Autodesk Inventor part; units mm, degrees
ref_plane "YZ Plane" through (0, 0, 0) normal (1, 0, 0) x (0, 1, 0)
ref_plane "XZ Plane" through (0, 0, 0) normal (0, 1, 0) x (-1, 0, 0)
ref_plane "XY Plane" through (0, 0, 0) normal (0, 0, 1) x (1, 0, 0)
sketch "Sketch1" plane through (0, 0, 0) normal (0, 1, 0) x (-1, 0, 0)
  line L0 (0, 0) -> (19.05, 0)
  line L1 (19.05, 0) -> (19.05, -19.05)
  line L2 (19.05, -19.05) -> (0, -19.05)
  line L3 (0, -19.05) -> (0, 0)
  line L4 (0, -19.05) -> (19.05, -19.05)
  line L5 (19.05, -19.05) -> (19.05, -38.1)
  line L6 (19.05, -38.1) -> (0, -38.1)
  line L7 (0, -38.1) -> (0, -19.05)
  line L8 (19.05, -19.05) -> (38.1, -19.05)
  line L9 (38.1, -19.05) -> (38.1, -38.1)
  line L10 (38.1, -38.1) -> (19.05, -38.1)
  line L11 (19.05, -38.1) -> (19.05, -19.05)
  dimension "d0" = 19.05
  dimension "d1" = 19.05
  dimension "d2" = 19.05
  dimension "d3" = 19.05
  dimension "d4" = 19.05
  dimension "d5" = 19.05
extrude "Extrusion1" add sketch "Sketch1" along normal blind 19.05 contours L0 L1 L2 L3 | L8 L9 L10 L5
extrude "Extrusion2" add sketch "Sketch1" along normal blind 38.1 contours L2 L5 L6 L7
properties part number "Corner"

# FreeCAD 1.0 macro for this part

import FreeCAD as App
import Part
import Sketcher
from FreeCAD import Vector
Q = App.Units.Quantity

doc = App.newDocument("Part")
body = doc.addObject("PartDesign::Body", "Body")
body.AllowCompound = True

sketch1 = doc.addObject("Sketcher::SketchObject", "Sketch")
body.addObject(sketch1)
sketch1.AttachmentSupport = (doc.XZ_Plane, [""])
sketch1.MapMode = "FlatFace"
sketch1.addGeometry([
    Part.LineSegment(Vector(-19, 0, 0), Vector(0, 0, 0)),
    Part.LineSegment(Vector(0, 0, 0), Vector(0, -19, 0)),
    Part.LineSegment(Vector(0, -19, 0), Vector(-19, -19, 0)),
    Part.LineSegment(Vector(-19, -19, 0), Vector(-19, 0, 0)),
    Part.LineSegment(Vector(-38, -19, 0), Vector(-19, -19, 0)),
    Part.LineSegment(Vector(-19, -19, 0), Vector(-19, -38, 0)),
    Part.LineSegment(Vector(-19, -38, 0), Vector(-38, -38, 0)),
    Part.LineSegment(Vector(-38, -38, 0), Vector(-38, -19, 0)),
], False)
sketch1.addConstraint([
    Sketcher.Constraint("Coincident", 0, 2, 1, 1),
    Sketcher.Constraint("Coincident", 1, 2, 2, 1),
    Sketcher.Constraint("Coincident", 2, 2, 3, 1),
    Sketcher.Constraint("Coincident", 3, 2, 0, 1),
    Sketcher.Constraint("Coincident", 4, 2, 5, 1),
    Sketcher.Constraint("Coincident", 5, 2, 6, 1),
    Sketcher.Constraint("Coincident", 6, 2, 7, 1),
    Sketcher.Constraint("Coincident", 7, 2, 4, 1),
    Sketcher.Constraint("Horizontal", 0),
    Sketcher.Constraint("Vertical", 1),
    Sketcher.Constraint("Horizontal", 2),
    Sketcher.Constraint("Vertical", 3),
    Sketcher.Constraint("Horizontal", 4),
    Sketcher.Constraint("Vertical", 5),
    Sketcher.Constraint("Horizontal", 6),
    Sketcher.Constraint("Vertical", 7),
    Sketcher.Constraint("Coincident", 0, 2, -1, 1),
    Sketcher.Constraint("Coincident", 4, 2, 2, 2),
    Sketcher.Constraint("Equal", 2, 4),
    Sketcher.Constraint("Equal", 6, 1),
    Sketcher.Constraint("Equal", 3, 5),
    Sketcher.Constraint("DistanceX", 0, 1, 0, 2, Q("0.75 in")),
])
pad1 = doc.addObject("PartDesign::Pad", "Pad")
body.addObject(pad1)
pad1.Profile = sketch1
pad1.Length = Q("0.75 in")
pad1.Reversed = True

sketch2 = doc.addObject("Sketcher::SketchObject", "Sketch001")
body.addObject(sketch2)
sketch2.AttachmentSupport = (doc.XZ_Plane, [""])
sketch2.MapMode = "FlatFace"
sketch2.addGeometry([
    Part.LineSegment(Vector(-19, -19, 0), Vector(0, -19, 0)),
    Part.LineSegment(Vector(0, -19, 0), Vector(0, -38, 0)),
    Part.LineSegment(Vector(0, -38, 0), Vector(-19, -38, 0)),
    Part.LineSegment(Vector(-19, -38, 0), Vector(-19, -19, 0)),
], False)
sketch2.addConstraint([
    Sketcher.Constraint("Coincident", 0, 2, 1, 1),
    Sketcher.Constraint("Coincident", 1, 2, 2, 1),
    Sketcher.Constraint("Coincident", 2, 2, 3, 1),
    Sketcher.Constraint("Coincident", 3, 2, 0, 1),
    Sketcher.Constraint("Horizontal", 0),
    Sketcher.Constraint("Vertical", 1),
    Sketcher.Constraint("Horizontal", 2),
    Sketcher.Constraint("Vertical", 3),
    Sketcher.Constraint("PointOnObject", 0, 2, -2),
    Sketcher.Constraint("Equal", 2, 1),
    Sketcher.Constraint("DistanceX", 0, 1, 0, 2, Q("0.75 in")),
    Sketcher.Constraint("DistanceY", 0, 2, -1, 1, Q("0.75 in")),
])
pad2 = doc.addObject("PartDesign::Pad", "Pad001")
body.addObject(pad2)
pad2.Profile = sketch2
pad2.Length = Q("1.5 in")
pad2.Reversed = True

doc.recompute()
